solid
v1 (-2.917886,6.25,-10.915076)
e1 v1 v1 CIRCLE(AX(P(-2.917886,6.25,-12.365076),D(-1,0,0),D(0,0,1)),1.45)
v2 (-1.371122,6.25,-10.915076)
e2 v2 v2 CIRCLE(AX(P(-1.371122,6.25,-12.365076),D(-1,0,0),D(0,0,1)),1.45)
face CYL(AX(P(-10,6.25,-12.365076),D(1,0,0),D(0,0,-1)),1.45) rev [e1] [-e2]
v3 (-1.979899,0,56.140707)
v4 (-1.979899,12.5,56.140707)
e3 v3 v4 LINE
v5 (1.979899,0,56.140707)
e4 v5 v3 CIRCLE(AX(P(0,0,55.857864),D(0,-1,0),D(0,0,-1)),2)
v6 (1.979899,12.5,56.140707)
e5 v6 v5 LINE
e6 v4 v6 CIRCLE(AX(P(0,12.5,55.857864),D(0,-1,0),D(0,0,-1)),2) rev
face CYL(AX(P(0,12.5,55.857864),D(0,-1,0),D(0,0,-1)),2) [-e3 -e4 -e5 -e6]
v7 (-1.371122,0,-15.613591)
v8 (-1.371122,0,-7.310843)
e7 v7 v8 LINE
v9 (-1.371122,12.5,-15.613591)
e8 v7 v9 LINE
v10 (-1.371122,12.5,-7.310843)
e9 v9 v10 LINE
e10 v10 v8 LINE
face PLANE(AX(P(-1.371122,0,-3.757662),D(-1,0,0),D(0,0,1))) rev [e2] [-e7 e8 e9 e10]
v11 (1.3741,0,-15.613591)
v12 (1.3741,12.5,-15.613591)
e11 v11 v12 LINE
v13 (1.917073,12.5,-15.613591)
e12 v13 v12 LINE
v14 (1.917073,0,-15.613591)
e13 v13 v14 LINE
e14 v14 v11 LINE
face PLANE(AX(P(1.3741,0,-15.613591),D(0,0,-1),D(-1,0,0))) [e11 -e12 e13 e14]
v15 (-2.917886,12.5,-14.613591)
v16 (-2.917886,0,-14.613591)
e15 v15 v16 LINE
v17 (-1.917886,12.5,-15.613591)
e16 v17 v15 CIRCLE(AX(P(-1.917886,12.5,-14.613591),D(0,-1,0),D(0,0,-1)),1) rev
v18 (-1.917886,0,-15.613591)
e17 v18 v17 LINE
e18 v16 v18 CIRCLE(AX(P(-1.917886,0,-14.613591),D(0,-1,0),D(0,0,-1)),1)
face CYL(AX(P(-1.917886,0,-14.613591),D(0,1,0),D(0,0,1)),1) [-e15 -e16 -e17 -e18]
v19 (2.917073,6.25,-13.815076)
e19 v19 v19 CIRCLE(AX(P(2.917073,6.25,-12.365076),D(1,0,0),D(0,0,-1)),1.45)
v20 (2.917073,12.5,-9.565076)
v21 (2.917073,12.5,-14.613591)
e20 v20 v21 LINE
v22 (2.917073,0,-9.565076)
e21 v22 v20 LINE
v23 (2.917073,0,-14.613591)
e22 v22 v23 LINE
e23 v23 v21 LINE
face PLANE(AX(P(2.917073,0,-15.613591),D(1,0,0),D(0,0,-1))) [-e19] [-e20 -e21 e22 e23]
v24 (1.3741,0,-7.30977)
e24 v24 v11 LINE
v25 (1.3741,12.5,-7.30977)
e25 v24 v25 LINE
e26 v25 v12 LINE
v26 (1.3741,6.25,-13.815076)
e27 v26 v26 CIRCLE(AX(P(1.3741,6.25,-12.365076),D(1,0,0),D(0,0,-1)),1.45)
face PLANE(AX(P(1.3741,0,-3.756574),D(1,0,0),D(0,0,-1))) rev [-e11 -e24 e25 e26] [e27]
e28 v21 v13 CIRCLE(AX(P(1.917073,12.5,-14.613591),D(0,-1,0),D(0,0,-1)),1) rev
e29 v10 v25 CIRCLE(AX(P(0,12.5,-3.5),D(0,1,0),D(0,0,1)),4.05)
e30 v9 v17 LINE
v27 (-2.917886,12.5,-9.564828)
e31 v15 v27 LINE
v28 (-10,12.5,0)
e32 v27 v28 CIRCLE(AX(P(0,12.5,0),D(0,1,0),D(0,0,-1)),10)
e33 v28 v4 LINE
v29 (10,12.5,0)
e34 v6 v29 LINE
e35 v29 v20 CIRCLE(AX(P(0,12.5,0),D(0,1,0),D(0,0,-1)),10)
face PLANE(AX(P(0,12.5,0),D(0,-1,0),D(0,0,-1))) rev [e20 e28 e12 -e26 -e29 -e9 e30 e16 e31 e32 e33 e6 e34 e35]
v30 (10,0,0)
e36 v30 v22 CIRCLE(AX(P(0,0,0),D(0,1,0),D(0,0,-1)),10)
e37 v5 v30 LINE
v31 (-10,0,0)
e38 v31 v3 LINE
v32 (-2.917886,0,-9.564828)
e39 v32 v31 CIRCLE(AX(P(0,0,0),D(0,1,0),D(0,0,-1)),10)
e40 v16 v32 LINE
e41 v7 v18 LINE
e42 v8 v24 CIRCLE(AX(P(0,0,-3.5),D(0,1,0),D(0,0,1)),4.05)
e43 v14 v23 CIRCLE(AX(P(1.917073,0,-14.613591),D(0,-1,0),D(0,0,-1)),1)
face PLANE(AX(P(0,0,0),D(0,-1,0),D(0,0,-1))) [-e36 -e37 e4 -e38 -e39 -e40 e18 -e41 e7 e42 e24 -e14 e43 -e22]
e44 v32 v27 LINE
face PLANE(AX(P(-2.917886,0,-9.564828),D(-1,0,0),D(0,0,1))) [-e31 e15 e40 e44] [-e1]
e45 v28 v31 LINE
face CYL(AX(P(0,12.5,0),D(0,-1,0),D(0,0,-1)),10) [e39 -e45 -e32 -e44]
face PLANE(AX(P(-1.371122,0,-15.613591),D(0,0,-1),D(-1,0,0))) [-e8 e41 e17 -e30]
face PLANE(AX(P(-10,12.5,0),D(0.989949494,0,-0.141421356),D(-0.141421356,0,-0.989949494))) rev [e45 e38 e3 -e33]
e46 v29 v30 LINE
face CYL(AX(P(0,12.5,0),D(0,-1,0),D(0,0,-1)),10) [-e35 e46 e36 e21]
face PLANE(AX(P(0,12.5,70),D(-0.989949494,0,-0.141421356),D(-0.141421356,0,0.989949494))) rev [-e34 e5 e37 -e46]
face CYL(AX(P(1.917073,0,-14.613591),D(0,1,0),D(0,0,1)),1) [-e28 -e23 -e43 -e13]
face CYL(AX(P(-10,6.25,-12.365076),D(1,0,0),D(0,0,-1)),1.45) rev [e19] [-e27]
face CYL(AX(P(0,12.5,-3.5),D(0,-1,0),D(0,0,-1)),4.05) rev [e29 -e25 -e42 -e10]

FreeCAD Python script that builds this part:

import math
import FreeCAD as App
import Part
import Sketcher
Q = App.Units.Quantity


def edges_at(feature, points):
    """Names of the edges that pass closest to the given points."""
    edges = feature.Shape.Edges
    near = lambda p: min(range(len(edges)), key=lambda i: edges[i].distToShape(Part.Vertex(*p))[0])
    return sorted({f"Edge{near(p) + 1}" for p in points})

doc = App.newDocument("Part")
body = doc.addObject("PartDesign::Body", "Body")

sketch1 = doc.addObject("Sketcher::SketchObject", "Sketch")
body.addObject(sketch1)
sketch1.AttachmentSupport = (doc.XZ_Plane, [""])
sketch1.MapMode = "FlatFace"
sketch1.addGeometry(Part.LineSegment(App.Vector(-10, 0, 0), App.Vector(0, 70, 0)), False)
sketch1.addGeometry(Part.LineSegment(App.Vector(0, 70, 0), App.Vector(10, 0, 0)), False)
sketch1.addGeometry(Part.ArcOfCircle(Part.Circle(App.Vector(0, 0, 0), App.Vector(0, 0, 1), 10), math.radians(180), math.radians(360)), False)
sketch1.addGeometry(Part.Circle(App.Vector(0, -3.5, 0), App.Vector(0, 0, 1), 4), False)
sketch1.addConstraint(Sketcher.Constraint("Coincident", 0, 2, 1, 1))
sketch1.addConstraint(Sketcher.Constraint("Coincident", 1, 2, 2, 2))
sketch1.addConstraint(Sketcher.Constraint("Coincident", 2, 1, 0, 1))
sketch1.addConstraint(Sketcher.Constraint("Coincident", 2, 3, -1, 1))
sketch1.addConstraint(Sketcher.Constraint("PointOnObject", 3, 3, -2))
sketch1.addConstraint(Sketcher.Constraint("PointOnObject", 0, 2, -2))
sketch1.addConstraint(Sketcher.Constraint("PointOnObject", 1, 2, -1))
sketch1.addConstraint(Sketcher.Constraint("PointOnObject", 2, 1, -1))
sketch1.addConstraint(Sketcher.Constraint("Radius", 2, Q("10 mm")))
sketch1.addConstraint(Sketcher.Constraint("Diameter", 3, Q("8.1 mm")))
sketch1.addConstraint(Sketcher.Constraint("DistanceY", -1, 1, 0, 2, Q("70 mm")))
sketch1.addConstraint(Sketcher.Constraint("DistanceY", 3, 3, -1, 1, Q("3.5 mm")))
pad1 = doc.addObject("PartDesign::Pad", "Pad")
body.addObject(pad1)
pad1.Profile = sketch1
pad1.Length = 12.5
pad1.Reversed = True
doc.recompute()

fillet = doc.addObject("PartDesign::Fillet", "Fillet")
body.addObject(fillet)
fillet.Base = (pad1, edges_at(pad1, [(0, 6.25, 70)]))
fillet.Radius = 2

sketch2 = doc.addObject("Sketcher::SketchObject", "Sketch001")
body.addObject(sketch2)
sketch2.AttachmentSupport = (doc.XZ_Plane, [""])
sketch2.MapMode = "FlatFace"
sketch2.AttachmentOffset = App.Placement(App.Vector(0, 0, -12.5), App.Rotation())
sketch2.addGeometry(Part.LineSegment(App.Vector(-1.4, -13.1, 0), App.Vector(-1.4, -3.8, 0)), False)
sketch2.addGeometry(Part.ArcOfCircle(Part.Circle(App.Vector(0, 0, 0), App.Vector(0, 0, 1), 4), math.radians(-110), math.radians(-90)), False)
sketch2.addGeometry(Part.ArcOfCircle(Part.Circle(App.Vector(0, 0, 0), App.Vector(0, 0, 1), 4), math.radians(-90), math.radians(-70)), False)
sketch2.addGeometry(Part.LineSegment(App.Vector(1.4, -3.8, 0), App.Vector(1.4, -13.1, 0)), False)
sketch2.addGeometry(Part.LineSegment(App.Vector(1.4, -13.1, 0), App.Vector(-1.4, -13.1, 0)), False)
sketch2.addConstraint(Sketcher.Constraint("Coincident", 0, 2, 1, 1))
sketch2.addConstraint(Sketcher.Constraint("Tangent", 1, 2, 2, 1))
sketch2.addConstraint(Sketcher.Constraint("Coincident", 2, 2, 3, 1))
sketch2.addConstraint(Sketcher.Constraint("Coincident", 3, 2, 4, 1))
sketch2.addConstraint(Sketcher.Constraint("Coincident", 4, 2, 0, 1))
sketch2.addConstraint(Sketcher.Constraint("Vertical", 0))
sketch2.addConstraint(Sketcher.Constraint("Vertical", 3))
sketch2.addConstraint(Sketcher.Constraint("Horizontal", 4))
sketch2.addConstraint(Sketcher.Constraint("Coincident", 1, 3, -1, 1))
sketch2.addConstraint(Sketcher.Constraint("Equal", 1, 2))
sketch2.addConstraint(Sketcher.Constraint("PointOnObject", 1, 2, -2))
sketch2.addConstraint(Sketcher.Constraint("Radius", 1, Q("4 mm")))
sketch2.addConstraint(Sketcher.Constraint("DistanceX", 4, 2, 4, 1, Q("2.745221 mm")))
sketch2.addConstraint(Sketcher.Constraint("DistanceY", 3, 2, 3, 1, Q("9.294352 mm")))
sketch2.addConstraint(Sketcher.Constraint("DistanceX", -1, 1, 2, 2, Q("1.3741 mm")))
pocket1 = doc.addObject("PartDesign::Pocket", "Pocket")
body.addObject(pocket1)
pocket1.Profile = sketch2
pocket1.Type = "ThroughAll"
pocket1.Reversed = True

sketch3 = doc.addObject("Sketcher::SketchObject", "Sketch002")
body.addObject(sketch3)
sketch3.AttachmentSupport = (doc.XZ_Plane, [""])
sketch3.MapMode = "FlatFace"
sketch3.addGeometry(Part.LineSegment(App.Vector(-2.9, -15.6, 0), App.Vector(-2.9, -9.6, 0)), False)
sketch3.addGeometry(Part.ArcOfCircle(Part.Circle(App.Vector(0, 0, 0), App.Vector(0, 0, 1), 10), math.radians(-106.97), math.radians(-97.88)), False)
sketch3.addGeometry(Part.LineSegment(App.Vector(-1.4, -9.9, 0), App.Vector(-1.4, -15.6, 0)), False)
sketch3.addGeometry(Part.LineSegment(App.Vector(-1.4, -15.6, 0), App.Vector(-2.9, -15.6, 0)), False)
sketch3.addGeometry(Part.LineSegment(App.Vector(1.4, -15.6, 0), App.Vector(1.4, -9.9, 0)), False)
sketch3.addGeometry(Part.ArcOfCircle(Part.Circle(App.Vector(0, 0, 0), App.Vector(0, 0, 1), 10), math.radians(-82.1), math.radians(-73.04)), False)
sketch3.addGeometry(Part.LineSegment(App.Vector(2.9, -9.6, 0), App.Vector(2.9, -15.6, 0)), False)
sketch3.addGeometry(Part.LineSegment(App.Vector(2.9, -15.6, 0), App.Vector(1.4, -15.6, 0)), False)
sketch3.addConstraint(Sketcher.Constraint("Coincident", 0, 2, 1, 1))
sketch3.addConstraint(Sketcher.Constraint("Coincident", 1, 2, 2, 1))
sketch3.addConstraint(Sketcher.Constraint("Coincident", 2, 2, 3, 1))
sketch3.addConstraint(Sketcher.Constraint("Coincident", 3, 2, 0, 1))
sketch3.addConstraint(Sketcher.Constraint("Coincident", 4, 2, 5, 1))
sketch3.addConstraint(Sketcher.Constraint("Coincident", 5, 2, 6, 1))
sketch3.addConstraint(Sketcher.Constraint("Coincident", 6, 2, 7, 1))
sketch3.addConstraint(Sketcher.Constraint("Coincident", 7, 2, 4, 1))
sketch3.addConstraint(Sketcher.Constraint("Vertical", 0))
sketch3.addConstraint(Sketcher.Constraint("Vertical", 2))
sketch3.addConstraint(Sketcher.Constraint("Horizontal", 3))
sketch3.addConstraint(Sketcher.Constraint("Vertical", 4))
sketch3.addConstraint(Sketcher.Constraint("Vertical", 6))
sketch3.addConstraint(Sketcher.Constraint("Horizontal", 7))
sketch3.addConstraint(Sketcher.Constraint("Coincident", 1, 3, -1, 1))
sketch3.addConstraint(Sketcher.Constraint("Coincident", 5, 3, -1, 1))
sketch3.addConstraint(Sketcher.Constraint("Equal", 1, 5))
sketch3.addConstraint(Sketcher.Constraint("Horizontal", 3, 2, 6, 2))
sketch3.addConstraint(Sketcher.Constraint("Radius", 1, Q("10 mm")))
sketch3.addConstraint(Sketcher.Constraint("DistanceY", 4, 1, 4, 2, Q("5.708449 mm")))
sketch3.addConstraint(Sketcher.Constraint("DistanceX", -1, 1, 4, 2, Q("1.3741 mm")))
sketch3.addConstraint(Sketcher.Constraint("DistanceX", 3, 2, 3, 1, Q("1.546764 mm")))
sketch3.addConstraint(Sketcher.Constraint("DistanceX", 7, 2, 7, 1, Q("1.542973 mm")))
sketch3.addConstraint(Sketcher.Constraint("DistanceY", 0, 1, 0, 2, Q("6.048763 mm")))
pad2 = doc.addObject("PartDesign::Pad", "Pad001")
body.addObject(pad2)
pad2.Profile = sketch3
pad2.Length = 12.5
pad2.Reversed = True
doc.recompute()

fillet2 = doc.addObject("PartDesign::Fillet", "Fillet001")
body.addObject(fillet2)
fillet2.Base = (pad2, edges_at(pad2, [(-2.918, 6.25, -15.614), (2.917, 6.25, -15.614)]))
fillet2.Radius = 1

sketch4 = doc.addObject("Sketcher::SketchObject", "Sketch003")
body.addObject(sketch4)
sketch4.AttachmentSupport = (doc.YZ_Plane, [""])
sketch4.MapMode = "FlatFace"
sketch4.AttachmentOffset = App.Placement(App.Vector(0, 0, 2.917073), App.Rotation())
sketch4.addGeometry(Part.Circle(App.Vector(6.2, -12.4, 0), App.Vector(0, 0, 1), 1.4), False)
sketch4.addConstraint(Sketcher.Constraint("Diameter", 0, Q("2.9 mm")))
sketch4.addConstraint(Sketcher.Constraint("DistanceX", -1, 1, 0, 3, Q("6.25 mm")))
sketch4.addConstraint(Sketcher.Constraint("DistanceY", 0, 3, -1, 1, Q("12.365076 mm")))
pocket2 = doc.addObject("PartDesign::Pocket", "Pocket001")
body.addObject(pocket2)
pocket2.Profile = sketch4
pocket2.Type = "ThroughAll"

doc.recompute()
